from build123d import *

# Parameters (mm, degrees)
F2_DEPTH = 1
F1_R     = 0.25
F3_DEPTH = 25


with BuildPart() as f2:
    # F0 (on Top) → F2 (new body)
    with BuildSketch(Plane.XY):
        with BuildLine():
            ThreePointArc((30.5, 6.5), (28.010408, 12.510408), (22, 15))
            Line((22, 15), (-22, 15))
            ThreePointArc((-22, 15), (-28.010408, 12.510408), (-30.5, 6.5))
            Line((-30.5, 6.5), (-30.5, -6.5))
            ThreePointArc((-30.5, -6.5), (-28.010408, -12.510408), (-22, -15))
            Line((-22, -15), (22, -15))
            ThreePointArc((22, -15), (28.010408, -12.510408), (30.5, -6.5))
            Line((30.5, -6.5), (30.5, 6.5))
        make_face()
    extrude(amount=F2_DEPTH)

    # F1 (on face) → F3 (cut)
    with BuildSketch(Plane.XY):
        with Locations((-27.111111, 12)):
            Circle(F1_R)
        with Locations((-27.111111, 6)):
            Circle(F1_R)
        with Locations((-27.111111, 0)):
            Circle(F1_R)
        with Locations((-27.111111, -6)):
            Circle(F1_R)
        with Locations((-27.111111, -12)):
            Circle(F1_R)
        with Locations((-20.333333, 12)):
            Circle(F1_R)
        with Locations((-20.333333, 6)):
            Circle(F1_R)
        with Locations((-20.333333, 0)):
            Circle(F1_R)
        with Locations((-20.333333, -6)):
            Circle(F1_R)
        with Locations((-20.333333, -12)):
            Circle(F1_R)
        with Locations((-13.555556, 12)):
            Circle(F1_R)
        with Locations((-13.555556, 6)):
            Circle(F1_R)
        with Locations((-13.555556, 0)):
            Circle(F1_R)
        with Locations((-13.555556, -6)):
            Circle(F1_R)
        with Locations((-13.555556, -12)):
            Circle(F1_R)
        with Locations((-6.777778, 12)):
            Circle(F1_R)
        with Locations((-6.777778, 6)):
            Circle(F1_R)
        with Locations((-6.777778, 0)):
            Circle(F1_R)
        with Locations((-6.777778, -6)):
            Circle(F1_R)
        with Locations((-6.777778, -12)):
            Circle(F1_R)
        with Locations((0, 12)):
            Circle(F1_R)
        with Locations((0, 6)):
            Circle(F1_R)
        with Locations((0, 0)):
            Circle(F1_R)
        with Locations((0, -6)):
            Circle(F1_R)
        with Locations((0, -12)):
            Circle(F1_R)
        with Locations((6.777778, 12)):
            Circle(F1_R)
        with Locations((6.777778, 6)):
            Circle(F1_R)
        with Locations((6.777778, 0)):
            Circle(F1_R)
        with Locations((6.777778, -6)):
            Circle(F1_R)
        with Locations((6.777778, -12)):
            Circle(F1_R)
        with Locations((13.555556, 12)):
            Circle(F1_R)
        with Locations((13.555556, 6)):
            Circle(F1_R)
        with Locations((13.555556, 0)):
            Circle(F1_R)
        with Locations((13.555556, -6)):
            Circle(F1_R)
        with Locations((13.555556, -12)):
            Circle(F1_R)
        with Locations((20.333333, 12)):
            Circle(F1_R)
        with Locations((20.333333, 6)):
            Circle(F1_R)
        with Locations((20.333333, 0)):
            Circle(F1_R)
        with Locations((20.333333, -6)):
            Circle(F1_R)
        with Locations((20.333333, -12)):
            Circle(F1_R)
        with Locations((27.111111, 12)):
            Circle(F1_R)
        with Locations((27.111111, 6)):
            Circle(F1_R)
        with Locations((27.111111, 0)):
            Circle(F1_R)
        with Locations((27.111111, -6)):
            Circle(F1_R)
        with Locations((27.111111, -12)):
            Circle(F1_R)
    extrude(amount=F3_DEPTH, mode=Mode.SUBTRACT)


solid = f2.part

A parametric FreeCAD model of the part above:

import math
import FreeCAD as App
import Part
import Sketcher

V = App.Vector
Q = App.Units.Quantity

doc = App.newDocument("Part")
params = doc.addObject("Spreadsheet::Sheet", "Params")
for row, (alias, value) in enumerate([
    ("sketch1_radius", "8.499999 mm"),
    ("sketch1_width", "44 mm"),
    ("sketch1_height", "13 mm"),
    ("pad1_length", "1 mm"),
    ("sketch2_diameter", "0.5 mm"),
    ("pocket1_length", "25 mm"),
], start=1):
    params.set(f"A{row}", alias)
    params.set(f"B{row}", "=" + value)
    params.setAlias(f"B{row}", alias)

body = doc.addObject("PartDesign::Body", "Body")

# Sketch on XY plane
sketch1 = body.newObject("Sketcher::SketchObject", "Sketch")
sketch1.AttachmentSupport = (doc.getObject("XY_Plane"), [""])
sketch1.MapMode = "FlatFace"
sketch1.addGeometry([
    Part.ArcOfCircle(Part.Circle(V(22, 7, 0), V(0, 0, 1), 8), math.radians(0), math.radians(90)),  # 0
    Part.LineSegment(V(22, 15, 0), V(-22, 15, 0)),  # 1
    Part.ArcOfCircle(Part.Circle(V(-22, 7, 0), V(0, 0, 1), 8), math.radians(90), math.radians(180)),  # 2
    Part.LineSegment(V(-30, 6, 0), V(-30, -6, 0)),  # 3
    Part.ArcOfCircle(Part.Circle(V(-22, -7, 0), V(0, 0, 1), 8), math.radians(180), math.radians(270)),  # 4
    Part.LineSegment(V(-22, -15, 0), V(22, -15, 0)),  # 5
    Part.ArcOfCircle(Part.Circle(V(22, -7, 0), V(0, 0, 1), 8), math.radians(-90), math.radians(0)),  # 6
    Part.LineSegment(V(30, -6, 0), V(30, 6, 0)),  # 7
], False)
sketch1.addConstraint([
    Sketcher.Constraint("Tangent", 0, 2, 1, 1),
    Sketcher.Constraint("Tangent", 1, 2, 2, 1),
    Sketcher.Constraint("Tangent", 2, 2, 3, 1),
    Sketcher.Constraint("Tangent", 3, 2, 4, 1),
    Sketcher.Constraint("Tangent", 4, 2, 5, 1),
    Sketcher.Constraint("Tangent", 5, 2, 6, 1),
    Sketcher.Constraint("Tangent", 6, 2, 7, 1),
    Sketcher.Constraint("Tangent", 7, 2, 0, 1),
    Sketcher.Constraint("Horizontal", 1),
    Sketcher.Constraint("Vertical", 3),
    Sketcher.Constraint("Horizontal", 5),
    Sketcher.Constraint("Vertical", 7),
    Sketcher.Constraint("Equal", 0, 2),
    Sketcher.Constraint("Equal", 2, 4),
    Sketcher.Constraint("Equal", 4, 6),
    Sketcher.Constraint("Symmetric", 0, 3, 4, 3, -1, 1),
    Sketcher.Constraint("Radius", 0, Q("8.499999 mm")),
    Sketcher.Constraint("DistanceX", 1, 2, 1, 1, Q("44 mm")),
    Sketcher.Constraint("DistanceY", 3, 2, 3, 1, Q("13 mm")),
])
sketch1.setExpression("Constraints[16]", "Params.sketch1_radius")
sketch1.setExpression("Constraints[17]", "Params.sketch1_width")
sketch1.setExpression("Constraints[18]", "Params.sketch1_height")
pad1 = body.newObject("PartDesign::Pad", "Pad")
pad1.Profile = sketch1
pad1.setExpression("Length", "Params.pad1_length")

# Sketch on XY plane
sketch2 = body.newObject("Sketcher::SketchObject", "Sketch001")
sketch2.AttachmentSupport = (doc.getObject("XY_Plane"), [""])
sketch2.MapMode = "FlatFace"
sketch2.addGeometry([
    Part.Circle(V(-27.11, 12, 0), V(0, 0, 1), 0.25),  # 0
    Part.Circle(V(-27.11, 6, 0), V(0, 0, 1), 0.25),  # 1
    Part.Circle(V(-27.11, 0, 0), V(0, 0, 1), 0.25),  # 2
    Part.Circle(V(-27.11, -6, 0), V(0, 0, 1), 0.25),  # 3
    Part.Circle(V(-27.11, -12, 0), V(0, 0, 1), 0.25),  # 4
    Part.Circle(V(-20.33, 12, 0), V(0, 0, 1), 0.25),  # 5
    Part.Circle(V(-20.33, 6, 0), V(0, 0, 1), 0.25),  # 6
    Part.Circle(V(-20.33, 0, 0), V(0, 0, 1), 0.25),  # 7
    Part.Circle(V(-20.33, -6, 0), V(0, 0, 1), 0.25),  # 8
    Part.Circle(V(-20.33, -12, 0), V(0, 0, 1), 0.25),  # 9
    Part.Circle(V(-13.56, 12, 0), V(0, 0, 1), 0.25),  # 10
    Part.Circle(V(-13.56, 6, 0), V(0, 0, 1), 0.25),  # 11
    Part.Circle(V(-13.56, 0, 0), V(0, 0, 1), 0.25),  # 12
    Part.Circle(V(-13.56, -6, 0), V(0, 0, 1), 0.25),  # 13
    Part.Circle(V(-13.56, -12, 0), V(0, 0, 1), 0.25),  # 14
    Part.Circle(V(-6.78, 12, 0), V(0, 0, 1), 0.25),  # 15
    Part.Circle(V(-6.78, 6, 0), V(0, 0, 1), 0.25),  # 16
    Part.Circle(V(-6.78, 0, 0), V(0, 0, 1), 0.25),  # 17
    Part.Circle(V(-6.78, -6, 0), V(0, 0, 1), 0.25),  # 18
    Part.Circle(V(-6.78, -12, 0), V(0, 0, 1), 0.25),  # 19
    Part.Circle(V(0, 12, 0), V(0, 0, 1), 0.25),  # 20
    Part.Circle(V(0, 6, 0), V(0, 0, 1), 0.25),  # 21
    Part.Circle(V(0, 0, 0), V(0, 0, 1), 0.25),  # 22
    Part.Circle(V(0, -6, 0), V(0, 0, 1), 0.25),  # 23
    Part.Circle(V(0, -12, 0), V(0, 0, 1), 0.25),  # 24
    Part.Circle(V(6.78, 12, 0), V(0, 0, 1), 0.25),  # 25
    Part.Circle(V(6.78, 6, 0), V(0, 0, 1), 0.25),  # 26
    Part.Circle(V(6.78, 0, 0), V(0, 0, 1), 0.25),  # 27
    Part.Circle(V(6.78, -6, 0), V(0, 0, 1), 0.25),  # 28
    Part.Circle(V(6.78, -12, 0), V(0, 0, 1), 0.25),  # 29
    Part.Circle(V(13.56, 12, 0), V(0, 0, 1), 0.25),  # 30
    Part.Circle(V(13.56, 6, 0), V(0, 0, 1), 0.25),  # 31
    Part.Circle(V(13.56, 0, 0), V(0, 0, 1), 0.25),  # 32
    Part.Circle(V(13.56, -6, 0), V(0, 0, 1), 0.25),  # 33
    Part.Circle(V(13.56, -12, 0), V(0, 0, 1), 0.25),  # 34
    Part.Circle(V(20.33, 12, 0), V(0, 0, 1), 0.25),  # 35
    Part.Circle(V(20.33, 6, 0), V(0, 0, 1), 0.25),  # 36
    Part.Circle(V(20.33, 0, 0), V(0, 0, 1), 0.25),  # 37
    Part.Circle(V(20.33, -6, 0), V(0, 0, 1), 0.25),  # 38
    Part.Circle(V(20.33, -12, 0), V(0, 0, 1), 0.25),  # 39
    Part.Circle(V(27.11, 12, 0), V(0, 0, 1), 0.25),  # 40
    Part.Circle(V(27.11, 6, 0), V(0, 0, 1), 0.25),  # 41
    Part.Circle(V(27.11, 0, 0), V(0, 0, 1), 0.25),  # 42
    Part.Circle(V(27.11, -6, 0), V(0, 0, 1), 0.25),  # 43
    Part.Circle(V(27.11, -12, 0), V(0, 0, 1), 0.25),  # 44
], False)
sketch2.addConstraint([
    Sketcher.Constraint("Coincident", 22, 3, -1, 1),
    Sketcher.Constraint("Equal", 0, 1),
    Sketcher.Constraint("Equal", 1, 2),
    Sketcher.Constraint("Equal", 2, 3),
    Sketcher.Constraint("Equal", 3, 4),
    Sketcher.Constraint("Equal", 4, 5),
    Sketcher.Constraint("Equal", 5, 6),
    Sketcher.Constraint("Equal", 6, 7),
    Sketcher.Constraint("Equal", 7, 8),
    Sketcher.Constraint("Equal", 8, 9),
    Sketcher.Constraint("Equal", 9, 10),
    Sketcher.Constraint("Equal", 10, 11),
    Sketcher.Constraint("Equal", 11, 12),
    Sketcher.Constraint("Equal", 12, 13),
    Sketcher.Constraint("Equal", 13, 14),
    Sketcher.Constraint("Equal", 14, 15),
    Sketcher.Constraint("Equal", 15, 16),
    Sketcher.Constraint("Equal", 16, 17),
    Sketcher.Constraint("Equal", 17, 18),
    Sketcher.Constraint("Equal", 18, 19),
    Sketcher.Constraint("Equal", 19, 20),
    Sketcher.Constraint("Equal", 20, 21),
    Sketcher.Constraint("Equal", 21, 22),
    Sketcher.Constraint("Equal", 22, 23),
    Sketcher.Constraint("Equal", 23, 24),
    Sketcher.Constraint("Equal", 24, 25),
    Sketcher.Constraint("Equal", 25, 26),
    Sketcher.Constraint("Equal", 26, 27),
    Sketcher.Constraint("Equal", 27, 28),
    Sketcher.Constraint("Equal", 28, 29),
    Sketcher.Constraint("Equal", 29, 30),
    Sketcher.Constraint("Equal", 30, 31),
    Sketcher.Constraint("Equal", 31, 32),
    Sketcher.Constraint("Equal", 32, 33),
    Sketcher.Constraint("Equal", 33, 34),
    Sketcher.Constraint("Equal", 34, 35),
    Sketcher.Constraint("Equal", 35, 36),
    Sketcher.Constraint("Equal", 36, 37),
    Sketcher.Constraint("Equal", 37, 38),
    Sketcher.Constraint("Equal", 38, 39),
    Sketcher.Constraint("Equal", 39, 40),
    Sketcher.Constraint("Equal", 40, 41),
    Sketcher.Constraint("Equal", 41, 42),
    Sketcher.Constraint("Equal", 42, 43),
    Sketcher.Constraint("Equal", 43, 44),
    Sketcher.Constraint("Symmetric", 21, 3, 23, 3, -1, 1),
    Sketcher.Constraint("Symmetric", 20, 3, 24, 3, -1, 1),
    Sketcher.Constraint("Symmetric", 19, 3, 25, 3, -1, 1),
    Sketcher.Constraint("Symmetric", 18, 3, 26, 3, -1, 1),
    Sketcher.Constraint("Symmetric", 17, 3, 27, 3, -1, 1),
    Sketcher.Constraint("Symmetric", 16, 3, 28, 3, -1, 1),
    Sketcher.Constraint("Symmetric", 15, 3, 29, 3, -1, 1),
    Sketcher.Constraint("Symmetric", 14, 3, 30, 3, -1, 1),
    Sketcher.Constraint("Symmetric", 13, 3, 31, 3, -1, 1),
    Sketcher.Constraint("Symmetric", 12, 3, 32, 3, -1, 1),
    Sketcher.Constraint("Symmetric", 11, 3, 33, 3, -1, 1),
    Sketcher.Constraint("Symmetric", 10, 3, 34, 3, -1, 1),
    Sketcher.Constraint("Symmetric", 9, 3, 35, 3, -1, 1),
    Sketcher.Constraint("Symmetric", 8, 3, 36, 3, -1, 1),
    Sketcher.Constraint("Symmetric", 7, 3, 37, 3, -1, 1),
    Sketcher.Constraint("Symmetric", 6, 3, 38, 3, -1, 1),
    Sketcher.Constraint("Symmetric", 5, 3, 39, 3, -1, 1),
    Sketcher.Constraint("Symmetric", 4, 3, 40, 3, -1, 1),
    Sketcher.Constraint("Symmetric", 3, 3, 41, 3, -1, 1),
    Sketcher.Constraint("Symmetric", 2, 3, 42, 3, -1, 1),
    Sketcher.Constraint("Symmetric", 1, 3, 43, 3, -1, 1),
    Sketcher.Constraint("Symmetric", 0, 3, 44, 3, -1, 1),
    Sketcher.Constraint("Symmetric", 15, 3, 25, 3, -2),
    Sketcher.Constraint("Symmetric", 16, 3, 26, 3, -2),
    Sketcher.Constraint("Symmetric", 10, 3, 30, 3, -2),
    Sketcher.Constraint("Symmetric", 11, 3, 31, 3, -2),
    Sketcher.Constraint("Symmetric", 5, 3, 35, 3, -2),
    Sketcher.Constraint("Symmetric", 6, 3, 36, 3, -2),
    Sketcher.Constraint("Symmetric", 0, 3, 40, 3, -2),
    Sketcher.Constraint("Symmetric", 1, 3, 41, 3, -2),
    Sketcher.Constraint("PointOnObject", 2, 3, -1),
    Sketcher.Constraint("PointOnObject", 7, 3, -1),
    Sketcher.Constraint("PointOnObject", 12, 3, -1),
    Sketcher.Constraint("PointOnObject", 17, 3, -1),
    Sketcher.Constraint("PointOnObject", 20, 3, -2),
    Sketcher.Constraint("PointOnObject", 21, 3, -2),
    Sketcher.Constraint("Horizontal", 0, 3, 5, 3),
    Sketcher.Constraint("Horizontal", 1, 3, 6, 3),
    Sketcher.Constraint("Horizontal", 5, 3, 10, 3),
    Sketcher.Constraint("Horizontal", 6, 3, 11, 3),
    Sketcher.Constraint("Horizontal", 10, 3, 15, 3),
    Sketcher.Constraint("Horizontal", 11, 3, 16, 3),
    Sketcher.Constraint("Horizontal", 15, 3, 20, 3),
    Sketcher.Constraint("Horizontal", 16, 3, 21, 3),
    Sketcher.Constraint("Vertical", 0, 3, 1, 3),
    Sketcher.Constraint("Vertical", 1, 3, 2, 3),
    Sketcher.Constraint("Vertical", 5, 3, 6, 3),
    Sketcher.Constraint("Vertical", 6, 3, 7, 3),
    Sketcher.Constraint("Vertical", 10, 3, 11, 3),
    Sketcher.Constraint("Vertical", 11, 3, 12, 3),
    Sketcher.Constraint("Vertical", 15, 3, 16, 3),
    Sketcher.Constraint("Vertical", 16, 3, 17, 3),
    Sketcher.Constraint("Diameter", 0, Q("0.5 mm")),
    Sketcher.Constraint("DistanceY", -1, 1, 0, 3, Q("12 mm")),
    Sketcher.Constraint("DistanceY", -1, 1, 1, 3, Q("6 mm")),
    Sketcher.Constraint("DistanceX", 0, 3, -1, 1, Q("27.111111 mm")),
    Sketcher.Constraint("DistanceX", 0, 3, 5, 3, Q("6.777778 mm")),
    Sketcher.Constraint("DistanceX", 10, 3, -1, 1, Q("13.555556 mm")),
    Sketcher.Constraint("DistanceX", 15, 3, -1, 1, Q("6.777778 mm")),
])
sketch2.setExpression("Constraints[97]", "Params.sketch2_diameter")
pocket1 = body.newObject("PartDesign::Pocket", "Pocket")
pocket1.Profile = sketch2
pocket1.setExpression("Length", "Params.pocket1_length")
pocket1.Reversed = True

doc.recompute()
